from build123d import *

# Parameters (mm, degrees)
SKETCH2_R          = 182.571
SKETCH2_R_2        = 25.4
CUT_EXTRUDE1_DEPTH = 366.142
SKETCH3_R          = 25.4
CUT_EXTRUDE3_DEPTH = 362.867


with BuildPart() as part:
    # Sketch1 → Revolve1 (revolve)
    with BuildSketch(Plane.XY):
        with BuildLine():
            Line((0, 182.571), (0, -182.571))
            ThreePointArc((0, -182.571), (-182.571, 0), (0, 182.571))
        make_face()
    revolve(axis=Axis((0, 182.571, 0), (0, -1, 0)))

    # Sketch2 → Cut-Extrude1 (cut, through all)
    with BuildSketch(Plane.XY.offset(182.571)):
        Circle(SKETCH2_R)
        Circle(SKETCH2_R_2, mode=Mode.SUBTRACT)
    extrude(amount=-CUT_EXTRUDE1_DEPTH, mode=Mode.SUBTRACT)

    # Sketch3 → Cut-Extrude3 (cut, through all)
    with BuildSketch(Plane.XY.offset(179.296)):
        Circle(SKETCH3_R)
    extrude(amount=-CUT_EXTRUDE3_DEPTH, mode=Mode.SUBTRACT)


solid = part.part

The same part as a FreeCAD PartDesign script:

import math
import FreeCAD as App
import Part
import Sketcher
from FreeCAD import Vector
Q = App.Units.Quantity

doc = App.newDocument("Part")
body = doc.addObject("PartDesign::Body", "Body")

# Sketch on XY plane
sketch1 = body.newObject("Sketcher::SketchObject", "Sketch")
sketch1.AttachmentSupport = (doc.getObject("XY_Plane"), [""])
sketch1.MapMode = "FlatFace"
sketch1.addGeometry(Part.LineSegment(Vector(0, -183, 0), Vector(0, 183, 0)), False)
sketch1.addGeometry(Part.ArcOfCircle(Part.Circle(Vector(0, 0, 0), Vector(0, 0, 1), 183), math.radians(90), math.radians(270)), False)
sketch1.addConstraint(Sketcher.Constraint("Coincident", 0, 1, 1, 2))
sketch1.addConstraint(Sketcher.Constraint("Coincident", 1, 1, 0, 2))
sketch1.addConstraint(Sketcher.Constraint("Vertical", 0))
sketch1.addConstraint(Sketcher.Constraint("Coincident", 1, 3, -1, 1))
sketch1.addConstraint(Sketcher.Constraint("PointOnObject", 0, 1, -2))
sketch1.addConstraint(Sketcher.Constraint("Radius", 1, 182.571))
revolution = body.newObject("PartDesign::Revolution", "Revolution")
revolution.Profile = sketch1
revolution.ReferenceAxis = (sketch1, ["V_Axis"])
revolution.Angle = 360

# Sketch on XY plane
sketch2 = body.newObject("Sketcher::SketchObject", "Sketch001")
sketch2.AttachmentSupport = (doc.getObject("XY_Plane"), [""])
sketch2.MapMode = "FlatFace"
sketch2.AttachmentOffset = App.Placement(Vector(0, 0, 182.571), App.Rotation())
sketch2.addGeometry(Part.Circle(Vector(0, 0, 0), Vector(0, 0, 1), 183), False)
sketch2.addGeometry(Part.Circle(Vector(0, 0, 0), Vector(0, 0, 1), 25), False)
sketch2.addConstraint(Sketcher.Constraint("Coincident", 0, 3, -1, 1))
sketch2.addConstraint(Sketcher.Constraint("Coincident", 1, 3, -1, 1))
sketch2.addConstraint(Sketcher.Constraint("Diameter", 1, Q("2 in")))
sketch2.addConstraint(Sketcher.Constraint("Diameter", 0, 365.142))
pocket1 = body.newObject("PartDesign::Pocket", "Pocket")
pocket1.Profile = sketch2
pocket1.Type = "ThroughAll"

# Sketch on XY plane
sketch3 = body.newObject("Sketcher::SketchObject", "Sketch002")
sketch3.AttachmentSupport = (doc.getObject("XY_Plane"), [""])
sketch3.MapMode = "FlatFace"
sketch3.AttachmentOffset = App.Placement(Vector(0, 0, 179.296), App.Rotation())
sketch3.addGeometry(Part.Circle(Vector(0, 0, 0), Vector(0, 0, 1), 25), False)
sketch3.addConstraint(Sketcher.Constraint("Coincident", 0, 3, -1, 1))
sketch3.addConstraint(Sketcher.Constraint("Diameter", 0, Q("2 in")))
pocket2 = body.newObject("PartDesign::Pocket", "Pocket001")
pocket2.Profile = sketch3
pocket2.Type = "ThroughAll"

doc.recompute()
